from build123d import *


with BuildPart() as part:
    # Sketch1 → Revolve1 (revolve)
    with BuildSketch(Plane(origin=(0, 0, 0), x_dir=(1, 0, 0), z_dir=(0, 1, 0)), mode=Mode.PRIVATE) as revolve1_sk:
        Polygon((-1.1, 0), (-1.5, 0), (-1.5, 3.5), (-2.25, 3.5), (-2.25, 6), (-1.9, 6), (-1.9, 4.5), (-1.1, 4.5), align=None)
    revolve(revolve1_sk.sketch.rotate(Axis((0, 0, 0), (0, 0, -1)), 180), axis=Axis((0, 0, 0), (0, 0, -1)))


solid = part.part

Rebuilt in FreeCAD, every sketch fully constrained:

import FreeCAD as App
import Part
import Sketcher

V = App.Vector

doc = App.newDocument("Part")
body = doc.addObject("PartDesign::Body", "Body")

sketch1 = body.newObject("Sketcher::SketchObject", "Sketch")
sketch1.AttachmentSupport = (doc.getObject("XZ_Plane"), [""])
sketch1.MapMode = "FlatFace"
sketch1.addGeometry([
    Part.LineSegment(V(-1.5, 0, 0), V(-1.1, 0, 0)),
    Part.LineSegment(V(-1.1, 0, 0), V(-1.1, -4.5, 0)),
    Part.LineSegment(V(-1.1, -4.5, 0), V(-1.9, -4.5, 0)),
    Part.LineSegment(V(-1.9, -4.5, 0), V(-1.9, -6, 0)),
    Part.LineSegment(V(-1.9, -6, 0), V(-2.25, -6, 0)),
    Part.LineSegment(V(-2.25, -6, 0), V(-2.25, -3.5, 0)),
    Part.LineSegment(V(-2.25, -3.5, 0), V(-1.5, -3.5, 0)),
    Part.LineSegment(V(-1.5, -3.5, 0), V(-1.5, 0, 0)),
], False)
sketch1.addConstraint([
    Sketcher.Constraint("Coincident", 0, 2, 1, 1),
    Sketcher.Constraint("Coincident", 1, 2, 2, 1),
    Sketcher.Constraint("Coincident", 2, 2, 3, 1),
    Sketcher.Constraint("Coincident", 3, 2, 4, 1),
    Sketcher.Constraint("Coincident", 4, 2, 5, 1),
    Sketcher.Constraint("Coincident", 5, 2, 6, 1),
    Sketcher.Constraint("Coincident", 6, 2, 7, 1),
    Sketcher.Constraint("Coincident", 7, 2, 0, 1),
    Sketcher.Constraint("Horizontal", 0),
    Sketcher.Constraint("Vertical", 1),
    Sketcher.Constraint("Horizontal", 2),
    Sketcher.Constraint("Vertical", 3),
    Sketcher.Constraint("Horizontal", 4),
    Sketcher.Constraint("Vertical", 5),
    Sketcher.Constraint("Horizontal", 6),
    Sketcher.Constraint("Vertical", 7),
    Sketcher.Constraint("PointOnObject", 0, 2, -1),
    Sketcher.Constraint("DistanceX", 0, 1, 0, 2, 0.4),
    Sketcher.Constraint("DistanceX", 2, 2, 2, 1, 0.8),
    Sketcher.Constraint("DistanceY", 1, 2, 1, 1, 4.5),
    Sketcher.Constraint("DistanceY", 3, 2, 3, 1, 1.5),
    Sketcher.Constraint("DistanceY", 5, 1, 5, 2, 2.5),
    Sketcher.Constraint("DistanceX", 4, 2, 4, 1, 0.35),
    Sketcher.Constraint("DistanceX", 0, 2, -1, 1, 1.1),
])
revolution = body.newObject("PartDesign::Revolution", "Revolution")
revolution.Profile = sketch1
revolution.ReferenceAxis = (sketch1, ["V_Axis"])
revolution.Angle = 360

doc.recompute()
